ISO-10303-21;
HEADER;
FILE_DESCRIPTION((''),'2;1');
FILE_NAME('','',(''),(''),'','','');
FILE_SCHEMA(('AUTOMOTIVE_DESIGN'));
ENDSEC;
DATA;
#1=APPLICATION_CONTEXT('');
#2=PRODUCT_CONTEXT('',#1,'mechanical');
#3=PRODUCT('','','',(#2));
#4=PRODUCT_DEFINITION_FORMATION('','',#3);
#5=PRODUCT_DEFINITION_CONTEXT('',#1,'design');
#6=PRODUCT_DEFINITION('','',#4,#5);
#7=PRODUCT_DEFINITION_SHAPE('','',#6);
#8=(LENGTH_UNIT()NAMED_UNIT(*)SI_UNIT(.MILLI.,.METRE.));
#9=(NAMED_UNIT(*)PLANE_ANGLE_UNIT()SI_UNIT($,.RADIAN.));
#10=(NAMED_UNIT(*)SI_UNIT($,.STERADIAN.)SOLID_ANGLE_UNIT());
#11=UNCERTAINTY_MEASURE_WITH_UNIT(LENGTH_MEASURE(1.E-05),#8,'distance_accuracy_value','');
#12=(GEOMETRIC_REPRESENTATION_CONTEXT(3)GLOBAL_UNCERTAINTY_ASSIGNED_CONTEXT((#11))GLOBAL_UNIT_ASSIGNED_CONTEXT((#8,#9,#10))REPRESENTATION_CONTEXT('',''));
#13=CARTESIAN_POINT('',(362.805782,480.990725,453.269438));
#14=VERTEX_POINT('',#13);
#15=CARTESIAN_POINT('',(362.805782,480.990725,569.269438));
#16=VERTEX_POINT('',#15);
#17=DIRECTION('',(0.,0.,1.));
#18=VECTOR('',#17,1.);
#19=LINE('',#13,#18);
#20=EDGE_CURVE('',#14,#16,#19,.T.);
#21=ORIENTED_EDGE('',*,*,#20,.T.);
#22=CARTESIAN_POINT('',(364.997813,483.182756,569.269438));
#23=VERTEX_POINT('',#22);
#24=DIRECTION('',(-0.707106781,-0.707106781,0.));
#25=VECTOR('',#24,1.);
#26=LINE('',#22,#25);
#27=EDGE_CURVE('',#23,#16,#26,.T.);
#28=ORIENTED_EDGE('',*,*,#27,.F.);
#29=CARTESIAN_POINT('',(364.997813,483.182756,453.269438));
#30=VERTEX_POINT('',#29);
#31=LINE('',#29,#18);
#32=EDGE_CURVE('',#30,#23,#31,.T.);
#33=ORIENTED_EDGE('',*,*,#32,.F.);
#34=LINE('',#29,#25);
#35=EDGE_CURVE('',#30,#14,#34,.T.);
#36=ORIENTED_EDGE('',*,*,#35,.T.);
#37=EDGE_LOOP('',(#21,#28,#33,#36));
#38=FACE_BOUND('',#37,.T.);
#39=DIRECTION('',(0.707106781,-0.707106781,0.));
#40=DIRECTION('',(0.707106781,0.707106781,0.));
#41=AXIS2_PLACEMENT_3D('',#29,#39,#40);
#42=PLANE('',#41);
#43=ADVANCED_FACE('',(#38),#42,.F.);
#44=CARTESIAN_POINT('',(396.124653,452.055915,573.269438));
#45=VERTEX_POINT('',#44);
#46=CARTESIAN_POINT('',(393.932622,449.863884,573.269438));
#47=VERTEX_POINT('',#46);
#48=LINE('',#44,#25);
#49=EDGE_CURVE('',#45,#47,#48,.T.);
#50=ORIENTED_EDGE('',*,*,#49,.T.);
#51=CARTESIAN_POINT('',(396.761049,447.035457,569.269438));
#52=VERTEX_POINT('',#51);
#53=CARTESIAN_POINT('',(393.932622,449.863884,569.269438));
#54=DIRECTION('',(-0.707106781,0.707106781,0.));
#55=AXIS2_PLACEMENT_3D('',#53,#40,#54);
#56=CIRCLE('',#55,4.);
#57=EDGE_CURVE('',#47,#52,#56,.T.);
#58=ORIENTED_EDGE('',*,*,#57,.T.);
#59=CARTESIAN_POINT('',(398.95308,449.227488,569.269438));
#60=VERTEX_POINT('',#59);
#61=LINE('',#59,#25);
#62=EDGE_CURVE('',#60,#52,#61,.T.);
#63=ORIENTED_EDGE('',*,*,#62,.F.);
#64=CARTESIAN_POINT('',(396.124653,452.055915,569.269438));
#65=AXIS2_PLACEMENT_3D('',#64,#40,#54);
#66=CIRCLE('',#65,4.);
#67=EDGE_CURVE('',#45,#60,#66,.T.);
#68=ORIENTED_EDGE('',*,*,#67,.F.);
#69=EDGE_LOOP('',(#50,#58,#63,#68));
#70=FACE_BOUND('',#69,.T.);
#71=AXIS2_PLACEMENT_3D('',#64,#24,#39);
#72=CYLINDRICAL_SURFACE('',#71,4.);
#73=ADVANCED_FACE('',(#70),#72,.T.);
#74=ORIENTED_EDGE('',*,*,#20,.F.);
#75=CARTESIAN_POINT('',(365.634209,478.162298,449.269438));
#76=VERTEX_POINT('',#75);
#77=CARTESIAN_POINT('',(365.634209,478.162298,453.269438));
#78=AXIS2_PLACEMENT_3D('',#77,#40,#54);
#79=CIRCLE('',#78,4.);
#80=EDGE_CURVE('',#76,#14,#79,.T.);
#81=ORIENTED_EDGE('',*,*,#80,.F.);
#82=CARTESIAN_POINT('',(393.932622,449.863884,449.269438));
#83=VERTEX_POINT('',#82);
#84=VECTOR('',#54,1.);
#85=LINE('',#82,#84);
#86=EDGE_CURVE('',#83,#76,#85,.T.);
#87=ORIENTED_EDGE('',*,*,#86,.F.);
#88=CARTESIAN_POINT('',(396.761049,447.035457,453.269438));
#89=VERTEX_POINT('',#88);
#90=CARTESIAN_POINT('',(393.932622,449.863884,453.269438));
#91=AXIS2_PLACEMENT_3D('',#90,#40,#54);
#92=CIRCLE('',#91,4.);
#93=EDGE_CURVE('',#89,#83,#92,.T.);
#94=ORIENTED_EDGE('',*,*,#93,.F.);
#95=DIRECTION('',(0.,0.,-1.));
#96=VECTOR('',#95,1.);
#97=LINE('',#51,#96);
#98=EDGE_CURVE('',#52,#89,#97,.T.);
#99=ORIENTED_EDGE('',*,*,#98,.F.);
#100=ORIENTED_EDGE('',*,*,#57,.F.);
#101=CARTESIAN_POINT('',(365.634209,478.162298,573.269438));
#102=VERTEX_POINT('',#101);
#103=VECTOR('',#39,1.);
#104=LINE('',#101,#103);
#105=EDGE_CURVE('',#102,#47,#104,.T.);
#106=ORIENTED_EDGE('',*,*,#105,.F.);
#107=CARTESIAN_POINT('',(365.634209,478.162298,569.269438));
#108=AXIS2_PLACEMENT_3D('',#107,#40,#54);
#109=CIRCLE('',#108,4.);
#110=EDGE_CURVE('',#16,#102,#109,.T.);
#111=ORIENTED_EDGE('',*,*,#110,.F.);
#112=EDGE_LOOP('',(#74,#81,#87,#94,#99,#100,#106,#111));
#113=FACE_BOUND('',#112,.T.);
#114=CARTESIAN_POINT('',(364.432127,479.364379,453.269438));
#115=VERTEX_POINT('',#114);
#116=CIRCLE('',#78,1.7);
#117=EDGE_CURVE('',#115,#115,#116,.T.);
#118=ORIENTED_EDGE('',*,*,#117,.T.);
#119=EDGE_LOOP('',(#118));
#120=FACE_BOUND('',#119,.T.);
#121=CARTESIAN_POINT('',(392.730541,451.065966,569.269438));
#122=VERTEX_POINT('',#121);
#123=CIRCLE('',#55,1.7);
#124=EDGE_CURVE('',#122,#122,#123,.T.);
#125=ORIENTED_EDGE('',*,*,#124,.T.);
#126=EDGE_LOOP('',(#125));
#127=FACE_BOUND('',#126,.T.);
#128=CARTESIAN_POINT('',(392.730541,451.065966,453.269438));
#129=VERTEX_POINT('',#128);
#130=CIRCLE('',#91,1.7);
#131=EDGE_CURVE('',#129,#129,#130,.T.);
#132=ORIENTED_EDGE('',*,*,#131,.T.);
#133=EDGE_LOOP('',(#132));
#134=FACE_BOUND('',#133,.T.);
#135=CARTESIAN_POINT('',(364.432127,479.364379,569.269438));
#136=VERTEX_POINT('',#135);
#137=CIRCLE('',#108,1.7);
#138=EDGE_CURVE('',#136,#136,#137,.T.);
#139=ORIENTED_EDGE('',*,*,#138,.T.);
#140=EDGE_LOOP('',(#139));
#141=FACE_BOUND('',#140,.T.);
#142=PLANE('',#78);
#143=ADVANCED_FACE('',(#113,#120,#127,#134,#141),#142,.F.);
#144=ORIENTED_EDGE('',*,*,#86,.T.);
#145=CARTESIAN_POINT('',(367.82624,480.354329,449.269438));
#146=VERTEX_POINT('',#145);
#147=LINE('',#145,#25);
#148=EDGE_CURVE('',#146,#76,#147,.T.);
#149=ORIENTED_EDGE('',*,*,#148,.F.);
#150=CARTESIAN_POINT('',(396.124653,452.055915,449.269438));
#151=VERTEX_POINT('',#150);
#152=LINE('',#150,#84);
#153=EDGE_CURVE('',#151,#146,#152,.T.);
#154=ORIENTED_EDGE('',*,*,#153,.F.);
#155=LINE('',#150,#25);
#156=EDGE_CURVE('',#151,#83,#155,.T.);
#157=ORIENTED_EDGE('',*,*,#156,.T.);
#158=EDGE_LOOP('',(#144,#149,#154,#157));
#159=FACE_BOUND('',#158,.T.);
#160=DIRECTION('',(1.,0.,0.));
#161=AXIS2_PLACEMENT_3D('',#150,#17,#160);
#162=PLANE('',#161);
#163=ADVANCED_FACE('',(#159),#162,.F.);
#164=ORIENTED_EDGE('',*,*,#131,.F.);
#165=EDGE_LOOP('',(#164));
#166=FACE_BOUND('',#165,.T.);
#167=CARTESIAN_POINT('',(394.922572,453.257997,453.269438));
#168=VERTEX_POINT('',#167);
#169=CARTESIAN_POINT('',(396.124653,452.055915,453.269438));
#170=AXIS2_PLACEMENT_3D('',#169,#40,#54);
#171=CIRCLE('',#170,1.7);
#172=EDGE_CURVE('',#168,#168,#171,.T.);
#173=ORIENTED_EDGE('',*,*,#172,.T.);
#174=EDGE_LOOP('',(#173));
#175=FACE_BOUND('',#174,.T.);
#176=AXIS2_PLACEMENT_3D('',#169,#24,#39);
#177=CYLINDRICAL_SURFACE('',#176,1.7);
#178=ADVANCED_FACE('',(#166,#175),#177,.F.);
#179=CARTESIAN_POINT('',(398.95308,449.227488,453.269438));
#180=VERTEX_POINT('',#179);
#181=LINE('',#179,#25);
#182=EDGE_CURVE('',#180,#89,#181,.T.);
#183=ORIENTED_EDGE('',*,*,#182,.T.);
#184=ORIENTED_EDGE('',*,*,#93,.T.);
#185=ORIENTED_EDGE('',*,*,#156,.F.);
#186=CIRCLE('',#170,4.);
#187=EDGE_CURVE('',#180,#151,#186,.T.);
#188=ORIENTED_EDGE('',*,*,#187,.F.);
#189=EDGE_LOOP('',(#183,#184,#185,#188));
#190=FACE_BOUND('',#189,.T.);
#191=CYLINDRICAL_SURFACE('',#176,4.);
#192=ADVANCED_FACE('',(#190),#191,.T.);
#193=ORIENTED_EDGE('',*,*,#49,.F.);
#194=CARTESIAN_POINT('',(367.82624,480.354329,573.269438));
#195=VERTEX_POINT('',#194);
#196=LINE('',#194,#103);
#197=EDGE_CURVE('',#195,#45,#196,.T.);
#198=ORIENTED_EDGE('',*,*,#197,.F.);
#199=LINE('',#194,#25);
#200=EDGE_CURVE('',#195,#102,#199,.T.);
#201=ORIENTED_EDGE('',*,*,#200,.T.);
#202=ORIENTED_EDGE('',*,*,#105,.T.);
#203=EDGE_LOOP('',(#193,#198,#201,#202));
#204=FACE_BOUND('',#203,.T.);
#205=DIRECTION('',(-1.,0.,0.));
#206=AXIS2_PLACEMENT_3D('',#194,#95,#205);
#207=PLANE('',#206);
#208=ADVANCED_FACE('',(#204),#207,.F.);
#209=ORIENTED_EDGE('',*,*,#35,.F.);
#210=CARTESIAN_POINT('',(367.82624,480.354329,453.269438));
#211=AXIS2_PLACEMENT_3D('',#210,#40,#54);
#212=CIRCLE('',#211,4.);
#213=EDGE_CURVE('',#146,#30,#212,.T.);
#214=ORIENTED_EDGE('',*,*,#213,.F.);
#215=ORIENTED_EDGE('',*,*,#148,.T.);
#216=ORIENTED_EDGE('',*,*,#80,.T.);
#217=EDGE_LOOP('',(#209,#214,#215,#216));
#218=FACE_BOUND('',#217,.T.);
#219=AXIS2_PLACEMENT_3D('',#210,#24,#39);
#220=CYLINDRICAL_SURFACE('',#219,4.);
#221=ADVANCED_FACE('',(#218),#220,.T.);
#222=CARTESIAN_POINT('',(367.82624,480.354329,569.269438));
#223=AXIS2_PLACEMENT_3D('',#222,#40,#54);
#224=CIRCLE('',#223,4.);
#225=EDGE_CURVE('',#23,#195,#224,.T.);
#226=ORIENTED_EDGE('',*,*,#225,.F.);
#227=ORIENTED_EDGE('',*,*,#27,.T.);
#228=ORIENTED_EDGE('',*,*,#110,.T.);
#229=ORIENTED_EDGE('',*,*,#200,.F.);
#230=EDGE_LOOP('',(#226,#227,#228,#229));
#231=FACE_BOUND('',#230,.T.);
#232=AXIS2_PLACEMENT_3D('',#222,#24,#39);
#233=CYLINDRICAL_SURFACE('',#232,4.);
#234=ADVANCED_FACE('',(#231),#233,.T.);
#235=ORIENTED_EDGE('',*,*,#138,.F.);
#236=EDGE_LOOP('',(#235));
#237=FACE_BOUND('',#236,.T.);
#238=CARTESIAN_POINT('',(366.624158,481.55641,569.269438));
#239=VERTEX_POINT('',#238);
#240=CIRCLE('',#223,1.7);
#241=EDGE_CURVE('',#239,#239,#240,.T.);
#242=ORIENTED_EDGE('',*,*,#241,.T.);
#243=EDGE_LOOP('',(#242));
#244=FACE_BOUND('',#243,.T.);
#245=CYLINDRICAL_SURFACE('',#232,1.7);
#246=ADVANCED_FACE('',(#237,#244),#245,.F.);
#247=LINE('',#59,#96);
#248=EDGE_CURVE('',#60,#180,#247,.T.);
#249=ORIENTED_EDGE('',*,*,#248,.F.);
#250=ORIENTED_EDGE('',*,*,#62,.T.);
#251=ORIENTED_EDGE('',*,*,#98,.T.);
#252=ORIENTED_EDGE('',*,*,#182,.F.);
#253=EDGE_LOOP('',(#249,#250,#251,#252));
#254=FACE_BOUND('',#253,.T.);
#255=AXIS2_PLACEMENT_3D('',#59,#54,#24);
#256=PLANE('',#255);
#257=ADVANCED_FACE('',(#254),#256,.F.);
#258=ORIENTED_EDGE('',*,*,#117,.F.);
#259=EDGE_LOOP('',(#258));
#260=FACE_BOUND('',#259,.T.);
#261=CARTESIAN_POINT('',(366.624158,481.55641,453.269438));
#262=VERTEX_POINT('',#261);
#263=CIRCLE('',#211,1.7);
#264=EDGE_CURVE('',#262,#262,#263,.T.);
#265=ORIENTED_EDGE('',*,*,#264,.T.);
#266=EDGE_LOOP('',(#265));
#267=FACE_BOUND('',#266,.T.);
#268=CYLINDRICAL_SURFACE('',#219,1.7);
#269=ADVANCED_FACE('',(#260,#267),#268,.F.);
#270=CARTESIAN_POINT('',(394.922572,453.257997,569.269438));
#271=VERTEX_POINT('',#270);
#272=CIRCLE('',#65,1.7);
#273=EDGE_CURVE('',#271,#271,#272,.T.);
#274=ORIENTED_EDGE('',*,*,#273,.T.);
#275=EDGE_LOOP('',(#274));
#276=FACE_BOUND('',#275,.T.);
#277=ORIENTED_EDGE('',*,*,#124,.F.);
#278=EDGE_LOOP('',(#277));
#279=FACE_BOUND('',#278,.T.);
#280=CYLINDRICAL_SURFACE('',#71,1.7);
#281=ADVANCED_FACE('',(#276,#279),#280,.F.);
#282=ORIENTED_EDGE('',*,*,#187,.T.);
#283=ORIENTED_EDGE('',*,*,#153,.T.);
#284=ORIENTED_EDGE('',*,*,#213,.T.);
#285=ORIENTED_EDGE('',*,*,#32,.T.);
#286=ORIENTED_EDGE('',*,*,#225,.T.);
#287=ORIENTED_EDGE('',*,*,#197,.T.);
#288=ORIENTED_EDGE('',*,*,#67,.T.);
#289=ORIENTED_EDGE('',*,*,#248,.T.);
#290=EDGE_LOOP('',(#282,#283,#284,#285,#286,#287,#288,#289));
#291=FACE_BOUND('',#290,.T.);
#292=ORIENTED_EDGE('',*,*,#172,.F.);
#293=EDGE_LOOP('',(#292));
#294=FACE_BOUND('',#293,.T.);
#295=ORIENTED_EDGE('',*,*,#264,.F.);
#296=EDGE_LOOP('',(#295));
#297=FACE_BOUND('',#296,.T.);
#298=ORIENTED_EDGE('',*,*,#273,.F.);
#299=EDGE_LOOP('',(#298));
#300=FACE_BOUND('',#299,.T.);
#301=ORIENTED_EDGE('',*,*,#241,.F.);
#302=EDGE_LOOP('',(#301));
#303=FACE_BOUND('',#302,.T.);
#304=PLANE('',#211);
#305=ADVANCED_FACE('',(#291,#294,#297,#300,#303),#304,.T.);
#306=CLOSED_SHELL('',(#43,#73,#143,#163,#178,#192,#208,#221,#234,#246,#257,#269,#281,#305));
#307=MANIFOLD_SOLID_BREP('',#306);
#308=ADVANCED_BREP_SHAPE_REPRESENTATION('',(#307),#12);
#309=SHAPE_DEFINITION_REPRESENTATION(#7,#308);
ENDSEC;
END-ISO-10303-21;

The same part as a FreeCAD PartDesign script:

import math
import FreeCAD as App
import Part
import Sketcher

V = App.Vector
Q = App.Units.Quantity

doc = App.newDocument("Part")
body = doc.addObject("PartDesign::Body", "Body")

sketch1 = body.newObject("Sketcher::SketchObject", "Sketch")
sketch1.Placement = App.Placement(V(421.898253, 421.898253, 0), App.Rotation(V(0, 0, -1), V(-0.707106781, 0.707106781, 0), V(0.707106781, 0.707106781, 0), "ZXY"))
sketch1.addGeometry(Part.LineSegment(V(-449.3, 39.5, 0), V(-449.3, 79.6, 0)), False)
sketch1.addGeometry(Part.ArcOfCircle(Part.Circle(V(-453.3, 79.6, 0), V(0, 0, 1), 4), math.radians(0), math.radians(90)), False)
sketch1.addGeometry(Part.LineSegment(V(-453.3, 83.6, 0), V(-569.3, 83.6, 0)), False)
sketch1.addGeometry(Part.ArcOfCircle(Part.Circle(V(-569.3, 79.6, 0), V(0, 0, 1), 4), math.radians(90), math.radians(180)), False)
sketch1.addGeometry(Part.LineSegment(V(-573.3, 79.6, 0), V(-573.3, 39.5, 0)), False)
sketch1.addGeometry(Part.ArcOfCircle(Part.Circle(V(-569.3, 39.5, 0), V(0, 0, 1), 4), math.radians(180), math.radians(270)), False)
sketch1.addGeometry(Part.LineSegment(V(-569.3, 35.5, 0), V(-453.3, 35.5, 0)), False)
sketch1.addGeometry(Part.ArcOfCircle(Part.Circle(V(-453.3, 39.5, 0), V(0, 0, 1), 4), math.radians(-90), math.radians(0)), False)
sketch1.addGeometry(Part.Circle(V(-569.3, 39.5, 0), V(0, 0, 1), 1.7), False)
sketch1.addGeometry(Part.Circle(V(-453.3, 39.5, 0), V(0, 0, 1), 1.7), False)
sketch1.addGeometry(Part.Circle(V(-569.3, 79.6, 0), V(0, 0, 1), 1.7), False)
sketch1.addGeometry(Part.Circle(V(-453.3, 79.6, 0), V(0, 0, 1), 1.7), False)
sketch1.addConstraint(Sketcher.Constraint("Tangent", 0, 2, 1, 1))
sketch1.addConstraint(Sketcher.Constraint("Tangent", 1, 2, 2, 1))
sketch1.addConstraint(Sketcher.Constraint("Tangent", 2, 2, 3, 1))
sketch1.addConstraint(Sketcher.Constraint("Tangent", 3, 2, 4, 1))
sketch1.addConstraint(Sketcher.Constraint("Tangent", 4, 2, 5, 1))
sketch1.addConstraint(Sketcher.Constraint("Tangent", 5, 2, 6, 1))
sketch1.addConstraint(Sketcher.Constraint("Tangent", 6, 2, 7, 1))
sketch1.addConstraint(Sketcher.Constraint("Tangent", 7, 2, 0, 1))
sketch1.addConstraint(Sketcher.Constraint("Vertical", 0))
sketch1.addConstraint(Sketcher.Constraint("Horizontal", 2))
sketch1.addConstraint(Sketcher.Constraint("Vertical", 4))
sketch1.addConstraint(Sketcher.Constraint("Horizontal", 6))
sketch1.addConstraint(Sketcher.Constraint("Coincident", 8, 3, 5, 3))
sketch1.addConstraint(Sketcher.Constraint("Coincident", 9, 3, 7, 3))
sketch1.addConstraint(Sketcher.Constraint("Coincident", 10, 3, 3, 3))
sketch1.addConstraint(Sketcher.Constraint("Coincident", 11, 3, 1, 3))
sketch1.addConstraint(Sketcher.Constraint("Equal", 1, 3))
sketch1.addConstraint(Sketcher.Constraint("Equal", 3, 5))
sketch1.addConstraint(Sketcher.Constraint("Equal", 5, 7))
sketch1.addConstraint(Sketcher.Constraint("Equal", 8, 9))
sketch1.addConstraint(Sketcher.Constraint("Equal", 9, 10))
sketch1.addConstraint(Sketcher.Constraint("Equal", 10, 11))
sketch1.addConstraint(Sketcher.Constraint("Radius", 1, Q("4 mm")))
sketch1.addConstraint(Sketcher.Constraint("Diameter", 8, Q("3.4 mm")))
sketch1.addConstraint(Sketcher.Constraint("DistanceX", 2, 2, 2, 1, Q("116 mm")))
sketch1.addConstraint(Sketcher.Constraint("DistanceY", 0, 1, 0, 2, Q("40.02 mm")))
sketch1.addConstraint(Sketcher.Constraint("DistanceX", 1, 3, -1, 1, Q("453.269438 mm")))
sketch1.addConstraint(Sketcher.Constraint("DistanceY", -1, 1, 1, 3, Q("79.569375 mm")))
pad1 = body.newObject("PartDesign::Pad", "Pad")
pad1.Profile = sketch1
pad1.Length = 3.1

doc.recompute()
